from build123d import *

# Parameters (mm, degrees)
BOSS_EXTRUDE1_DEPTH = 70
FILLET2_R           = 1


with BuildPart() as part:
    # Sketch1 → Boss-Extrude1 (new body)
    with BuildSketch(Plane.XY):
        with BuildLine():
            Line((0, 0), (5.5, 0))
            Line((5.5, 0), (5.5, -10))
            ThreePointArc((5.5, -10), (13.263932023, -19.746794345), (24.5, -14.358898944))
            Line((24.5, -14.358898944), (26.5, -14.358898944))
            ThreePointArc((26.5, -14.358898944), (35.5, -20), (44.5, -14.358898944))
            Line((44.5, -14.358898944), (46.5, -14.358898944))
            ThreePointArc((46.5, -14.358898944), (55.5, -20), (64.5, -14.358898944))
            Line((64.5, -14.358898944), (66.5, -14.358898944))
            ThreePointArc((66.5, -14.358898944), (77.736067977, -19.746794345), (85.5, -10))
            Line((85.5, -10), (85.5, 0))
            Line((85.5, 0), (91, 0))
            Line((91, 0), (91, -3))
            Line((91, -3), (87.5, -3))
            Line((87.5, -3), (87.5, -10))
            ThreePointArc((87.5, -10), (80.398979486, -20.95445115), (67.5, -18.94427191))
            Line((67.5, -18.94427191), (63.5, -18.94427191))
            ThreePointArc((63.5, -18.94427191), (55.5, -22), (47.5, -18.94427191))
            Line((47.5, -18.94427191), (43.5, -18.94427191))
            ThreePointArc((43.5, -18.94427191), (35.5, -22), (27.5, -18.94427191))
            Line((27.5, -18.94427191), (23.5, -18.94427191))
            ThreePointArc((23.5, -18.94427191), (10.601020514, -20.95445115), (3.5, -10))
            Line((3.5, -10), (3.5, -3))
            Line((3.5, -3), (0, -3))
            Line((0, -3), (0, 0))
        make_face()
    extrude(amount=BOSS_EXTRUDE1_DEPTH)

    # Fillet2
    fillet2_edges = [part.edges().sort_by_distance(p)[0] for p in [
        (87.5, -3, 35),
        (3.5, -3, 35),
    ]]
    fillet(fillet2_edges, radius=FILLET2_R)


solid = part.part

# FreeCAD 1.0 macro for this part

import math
import FreeCAD as App
import Part
import Sketcher
from FreeCAD import Vector
Q = App.Units.Quantity


def edges_at(feature, points):
    """Names of the edges that pass closest to the given points."""
    edges = feature.Shape.Edges
    near = lambda p: min(range(len(edges)), key=lambda i: edges[i].distToShape(Part.Vertex(*p))[0])
    return sorted({f"Edge{near(p) + 1}" for p in points})

doc = App.newDocument("Part")
body = doc.addObject("PartDesign::Body", "Body")

# Sketch on XY plane
sketch1 = body.newObject("Sketcher::SketchObject", "Sketch")
sketch1.AttachmentSupport = (doc.getObject("XY_Plane"), [""])
sketch1.MapMode = "FlatFace"
sketch1.addGeometry([
    Part.LineSegment(Vector(5.5, 0, 0), Vector(0, 0, 0)),  # 0
    Part.LineSegment(Vector(0, 0, 0), Vector(0, -3, 0)),  # 1
    Part.LineSegment(Vector(0, -3, 0), Vector(3.5, -3, 0)),  # 2
    Part.LineSegment(Vector(3.5, -3, 0), Vector(3.5, -10, 0)),  # 3
    Part.ArcOfCircle(Part.Circle(Vector(15.5, -10, 0), Vector(0, 0, 1), 12), math.radians(180), math.radians(312)),  # 4
    Part.LineSegment(Vector(23.5, -18.9, 0), Vector(27.5, -18.9, 0)),  # 5
    Part.ArcOfCircle(Part.Circle(Vector(35.5, -10, 0), Vector(0, 0, 1), 12), math.radians(-132), math.radians(-48)),  # 6
    Part.LineSegment(Vector(43.5, -18.9, 0), Vector(47.5, -18.9, 0)),  # 7
    Part.ArcOfCircle(Part.Circle(Vector(55.5, -10, 0), Vector(0, 0, 1), 12), math.radians(-132), math.radians(-48)),  # 8
    Part.LineSegment(Vector(63.5, -18.9, 0), Vector(67.5, -18.9, 0)),  # 9
    Part.ArcOfCircle(Part.Circle(Vector(75.5, -10, 0), Vector(0, 0, 1), 12), math.radians(-132), math.radians(0)),  # 10
    Part.LineSegment(Vector(87.5, -10, 0), Vector(87.5, -3, 0)),  # 11
    Part.LineSegment(Vector(87.5, -3, 0), Vector(91, -3, 0)),  # 12
    Part.LineSegment(Vector(91, -3, 0), Vector(91, 0, 0)),  # 13
    Part.LineSegment(Vector(91, 0, 0), Vector(85.5, 0, 0)),  # 14
    Part.LineSegment(Vector(85.5, 0, 0), Vector(85.5, -10, 0)),  # 15
    Part.ArcOfCircle(Part.Circle(Vector(75.5, -10, 0), Vector(0, 0, 1), 10), math.radians(-154), math.radians(0)),  # 16
    Part.LineSegment(Vector(66.5, -14.4, 0), Vector(64.5, -14.4, 0)),  # 17
    Part.ArcOfCircle(Part.Circle(Vector(55.5, -10, 0), Vector(0, 0, 1), 10), math.radians(-154), math.radians(-26)),  # 18
    Part.LineSegment(Vector(46.5, -14.4, 0), Vector(44.5, -14.4, 0)),  # 19
    Part.ArcOfCircle(Part.Circle(Vector(35.5, -10, 0), Vector(0, 0, 1), 10), math.radians(-154), math.radians(-26)),  # 20
    Part.LineSegment(Vector(26.5, -14.4, 0), Vector(24.5, -14.4, 0)),  # 21
    Part.ArcOfCircle(Part.Circle(Vector(15.5, -10, 0), Vector(0, 0, 1), 10), math.radians(180), math.radians(334)),  # 22
    Part.LineSegment(Vector(5.5, -10, 0), Vector(5.5, 0, 0)),  # 23
], False)
sketch1.addConstraint([
    Sketcher.Constraint("Coincident", 0, 2, 1, 1),
    Sketcher.Constraint("Coincident", 1, 2, 2, 1),
    Sketcher.Constraint("Coincident", 2, 2, 3, 1),
    Sketcher.Constraint("Tangent", 3, 2, 4, 1),
    Sketcher.Constraint("Coincident", 4, 2, 5, 1),
    Sketcher.Constraint("Coincident", 5, 2, 6, 1),
    Sketcher.Constraint("Coincident", 6, 2, 7, 1),
    Sketcher.Constraint("Coincident", 7, 2, 8, 1),
    Sketcher.Constraint("Coincident", 8, 2, 9, 1),
    Sketcher.Constraint("Coincident", 9, 2, 10, 1),
    Sketcher.Constraint("Tangent", 10, 2, 11, 1),
    Sketcher.Constraint("Coincident", 11, 2, 12, 1),
    Sketcher.Constraint("Coincident", 12, 2, 13, 1),
    Sketcher.Constraint("Coincident", 13, 2, 14, 1),
    Sketcher.Constraint("Coincident", 14, 2, 15, 1),
    Sketcher.Constraint("Tangent", 15, 2, 16, 2),
    Sketcher.Constraint("Coincident", 16, 1, 17, 1),
    Sketcher.Constraint("Coincident", 17, 2, 18, 2),
    Sketcher.Constraint("Coincident", 18, 1, 19, 1),
    Sketcher.Constraint("Coincident", 19, 2, 20, 2),
    Sketcher.Constraint("Coincident", 20, 1, 21, 1),
    Sketcher.Constraint("Coincident", 21, 2, 22, 2),
    Sketcher.Constraint("Tangent", 22, 1, 23, 1),
    Sketcher.Constraint("Coincident", 23, 2, 0, 1),
    Sketcher.Constraint("Horizontal", 0),
    Sketcher.Constraint("Vertical", 1),
    Sketcher.Constraint("Horizontal", 2),
    Sketcher.Constraint("Vertical", 3),
    Sketcher.Constraint("Horizontal", 5),
    Sketcher.Constraint("Horizontal", 7),
    Sketcher.Constraint("Horizontal", 9),
    Sketcher.Constraint("Vertical", 11),
    Sketcher.Constraint("Horizontal", 12),
    Sketcher.Constraint("Vertical", 13),
    Sketcher.Constraint("Horizontal", 14),
    Sketcher.Constraint("Vertical", 15),
    Sketcher.Constraint("Horizontal", 17),
    Sketcher.Constraint("Horizontal", 19),
    Sketcher.Constraint("Horizontal", 21),
    Sketcher.Constraint("Vertical", 23),
    Sketcher.Constraint("Coincident", 0, 2, -1, 1),
    Sketcher.Constraint("Coincident", 16, 3, 10, 3),
    Sketcher.Constraint("Coincident", 18, 3, 8, 3),
    Sketcher.Constraint("Coincident", 20, 3, 6, 3),
    Sketcher.Constraint("Coincident", 22, 3, 4, 3),
    Sketcher.Constraint("Equal", 4, 6),
    Sketcher.Constraint("Equal", 6, 8),
    Sketcher.Constraint("Equal", 8, 10),
    Sketcher.Constraint("Equal", 16, 18),
    Sketcher.Constraint("Equal", 18, 20),
    Sketcher.Constraint("Equal", 20, 22),
    Sketcher.Constraint("PointOnObject", 13, 2, -1),
    Sketcher.Constraint("Horizontal", 4, 3, 6, 3),
    Sketcher.Constraint("Horizontal", 6, 3, 8, 3),
    Sketcher.Constraint("Horizontal", 8, 3, 10, 3),
    Sketcher.Constraint("Horizontal", 5, 2, 6, 2),
    Sketcher.Constraint("Horizontal", 7, 2, 8, 2),
    Sketcher.Constraint("Horizontal", 2, 2, 11, 2),
    Sketcher.Constraint("Horizontal", 17, 2, 18, 1),
    Sketcher.Constraint("Horizontal", 19, 2, 20, 1),
    Sketcher.Constraint("Equal", 5, 7),
    Sketcher.Constraint("Equal", 7, 9),
    Sketcher.Constraint("Equal", 2, 12),
    Sketcher.Constraint("Radius", 4, Q("12 mm")),
    Sketcher.Constraint("Radius", 16, Q("10 mm")),
    Sketcher.Constraint("DistanceX", 5, 1, 5, 2, Q("4 mm")),
    Sketcher.Constraint("DistanceX", 17, 2, 17, 1, Q("2 mm")),
    Sketcher.Constraint("DistanceY", 1, 2, 1, 1, Q("3 mm")),
    Sketcher.Constraint("DistanceY", 3, 2, 3, 1, Q("7 mm")),
    Sketcher.Constraint("DistanceX", 0, 2, 0, 1, Q("5.5 mm")),
    Sketcher.Constraint("DistanceX", -1, 1, 12, 2, Q("91 mm")),
])
pad1 = body.newObject("PartDesign::Pad", "Pad")
pad1.Profile = sketch1
pad1.Length = 70
doc.recompute()

fillet = body.newObject("PartDesign::Fillet", "Fillet")
fillet.Base = (pad1, edges_at(pad1, [(87.5, -3, 35), (3.5, -3, 35)]))
fillet.Radius = 1

doc.recompute()
